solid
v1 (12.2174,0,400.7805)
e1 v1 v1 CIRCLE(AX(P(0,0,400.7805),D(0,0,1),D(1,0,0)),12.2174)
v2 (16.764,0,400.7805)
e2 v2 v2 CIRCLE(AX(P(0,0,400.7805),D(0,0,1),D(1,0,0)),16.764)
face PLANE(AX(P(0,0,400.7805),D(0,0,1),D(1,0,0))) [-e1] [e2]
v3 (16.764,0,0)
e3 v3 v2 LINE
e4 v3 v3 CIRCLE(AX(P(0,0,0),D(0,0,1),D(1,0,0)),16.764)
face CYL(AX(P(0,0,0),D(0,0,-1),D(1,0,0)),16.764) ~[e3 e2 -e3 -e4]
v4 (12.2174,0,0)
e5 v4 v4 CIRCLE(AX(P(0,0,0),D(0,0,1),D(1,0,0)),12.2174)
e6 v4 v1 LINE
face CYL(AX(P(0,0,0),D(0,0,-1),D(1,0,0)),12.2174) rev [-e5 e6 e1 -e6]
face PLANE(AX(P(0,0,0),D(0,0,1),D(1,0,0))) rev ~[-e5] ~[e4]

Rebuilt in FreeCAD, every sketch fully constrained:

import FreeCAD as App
import Part
import Sketcher
Q = App.Units.Quantity

doc = App.newDocument("Part")
body = doc.addObject("PartDesign::Body", "Body")

# Sketch on XY plane
sketch1 = body.newObject("Sketcher::SketchObject", "Sketch")
sketch1.AttachmentSupport = (doc.getObject("XY_Plane"), [""])
sketch1.MapMode = "FlatFace"
sketch1.addGeometry(Part.Circle(App.Vector(0, 0, 0), App.Vector(0, 0, 1), 16.764), False)
sketch1.addGeometry(Part.Circle(App.Vector(0, 0, 0), App.Vector(0, 0, 1), 12.2174), False)
sketch1.addConstraint(Sketcher.Constraint("Coincident", 0, 3, -1, 1))
sketch1.addConstraint(Sketcher.Constraint("Coincident", 1, 3, -1, 1))
sketch1.addConstraint(Sketcher.Constraint("Diameter", 0, Q("1.32 in")))
sketch1.addConstraint(Sketcher.Constraint("Diameter", 1, Q("0.962 in")))
pad1 = body.newObject("PartDesign::Pad", "Pad")
pad1.Profile = sketch1
pad1.Length = 400.7805

doc.recompute()
